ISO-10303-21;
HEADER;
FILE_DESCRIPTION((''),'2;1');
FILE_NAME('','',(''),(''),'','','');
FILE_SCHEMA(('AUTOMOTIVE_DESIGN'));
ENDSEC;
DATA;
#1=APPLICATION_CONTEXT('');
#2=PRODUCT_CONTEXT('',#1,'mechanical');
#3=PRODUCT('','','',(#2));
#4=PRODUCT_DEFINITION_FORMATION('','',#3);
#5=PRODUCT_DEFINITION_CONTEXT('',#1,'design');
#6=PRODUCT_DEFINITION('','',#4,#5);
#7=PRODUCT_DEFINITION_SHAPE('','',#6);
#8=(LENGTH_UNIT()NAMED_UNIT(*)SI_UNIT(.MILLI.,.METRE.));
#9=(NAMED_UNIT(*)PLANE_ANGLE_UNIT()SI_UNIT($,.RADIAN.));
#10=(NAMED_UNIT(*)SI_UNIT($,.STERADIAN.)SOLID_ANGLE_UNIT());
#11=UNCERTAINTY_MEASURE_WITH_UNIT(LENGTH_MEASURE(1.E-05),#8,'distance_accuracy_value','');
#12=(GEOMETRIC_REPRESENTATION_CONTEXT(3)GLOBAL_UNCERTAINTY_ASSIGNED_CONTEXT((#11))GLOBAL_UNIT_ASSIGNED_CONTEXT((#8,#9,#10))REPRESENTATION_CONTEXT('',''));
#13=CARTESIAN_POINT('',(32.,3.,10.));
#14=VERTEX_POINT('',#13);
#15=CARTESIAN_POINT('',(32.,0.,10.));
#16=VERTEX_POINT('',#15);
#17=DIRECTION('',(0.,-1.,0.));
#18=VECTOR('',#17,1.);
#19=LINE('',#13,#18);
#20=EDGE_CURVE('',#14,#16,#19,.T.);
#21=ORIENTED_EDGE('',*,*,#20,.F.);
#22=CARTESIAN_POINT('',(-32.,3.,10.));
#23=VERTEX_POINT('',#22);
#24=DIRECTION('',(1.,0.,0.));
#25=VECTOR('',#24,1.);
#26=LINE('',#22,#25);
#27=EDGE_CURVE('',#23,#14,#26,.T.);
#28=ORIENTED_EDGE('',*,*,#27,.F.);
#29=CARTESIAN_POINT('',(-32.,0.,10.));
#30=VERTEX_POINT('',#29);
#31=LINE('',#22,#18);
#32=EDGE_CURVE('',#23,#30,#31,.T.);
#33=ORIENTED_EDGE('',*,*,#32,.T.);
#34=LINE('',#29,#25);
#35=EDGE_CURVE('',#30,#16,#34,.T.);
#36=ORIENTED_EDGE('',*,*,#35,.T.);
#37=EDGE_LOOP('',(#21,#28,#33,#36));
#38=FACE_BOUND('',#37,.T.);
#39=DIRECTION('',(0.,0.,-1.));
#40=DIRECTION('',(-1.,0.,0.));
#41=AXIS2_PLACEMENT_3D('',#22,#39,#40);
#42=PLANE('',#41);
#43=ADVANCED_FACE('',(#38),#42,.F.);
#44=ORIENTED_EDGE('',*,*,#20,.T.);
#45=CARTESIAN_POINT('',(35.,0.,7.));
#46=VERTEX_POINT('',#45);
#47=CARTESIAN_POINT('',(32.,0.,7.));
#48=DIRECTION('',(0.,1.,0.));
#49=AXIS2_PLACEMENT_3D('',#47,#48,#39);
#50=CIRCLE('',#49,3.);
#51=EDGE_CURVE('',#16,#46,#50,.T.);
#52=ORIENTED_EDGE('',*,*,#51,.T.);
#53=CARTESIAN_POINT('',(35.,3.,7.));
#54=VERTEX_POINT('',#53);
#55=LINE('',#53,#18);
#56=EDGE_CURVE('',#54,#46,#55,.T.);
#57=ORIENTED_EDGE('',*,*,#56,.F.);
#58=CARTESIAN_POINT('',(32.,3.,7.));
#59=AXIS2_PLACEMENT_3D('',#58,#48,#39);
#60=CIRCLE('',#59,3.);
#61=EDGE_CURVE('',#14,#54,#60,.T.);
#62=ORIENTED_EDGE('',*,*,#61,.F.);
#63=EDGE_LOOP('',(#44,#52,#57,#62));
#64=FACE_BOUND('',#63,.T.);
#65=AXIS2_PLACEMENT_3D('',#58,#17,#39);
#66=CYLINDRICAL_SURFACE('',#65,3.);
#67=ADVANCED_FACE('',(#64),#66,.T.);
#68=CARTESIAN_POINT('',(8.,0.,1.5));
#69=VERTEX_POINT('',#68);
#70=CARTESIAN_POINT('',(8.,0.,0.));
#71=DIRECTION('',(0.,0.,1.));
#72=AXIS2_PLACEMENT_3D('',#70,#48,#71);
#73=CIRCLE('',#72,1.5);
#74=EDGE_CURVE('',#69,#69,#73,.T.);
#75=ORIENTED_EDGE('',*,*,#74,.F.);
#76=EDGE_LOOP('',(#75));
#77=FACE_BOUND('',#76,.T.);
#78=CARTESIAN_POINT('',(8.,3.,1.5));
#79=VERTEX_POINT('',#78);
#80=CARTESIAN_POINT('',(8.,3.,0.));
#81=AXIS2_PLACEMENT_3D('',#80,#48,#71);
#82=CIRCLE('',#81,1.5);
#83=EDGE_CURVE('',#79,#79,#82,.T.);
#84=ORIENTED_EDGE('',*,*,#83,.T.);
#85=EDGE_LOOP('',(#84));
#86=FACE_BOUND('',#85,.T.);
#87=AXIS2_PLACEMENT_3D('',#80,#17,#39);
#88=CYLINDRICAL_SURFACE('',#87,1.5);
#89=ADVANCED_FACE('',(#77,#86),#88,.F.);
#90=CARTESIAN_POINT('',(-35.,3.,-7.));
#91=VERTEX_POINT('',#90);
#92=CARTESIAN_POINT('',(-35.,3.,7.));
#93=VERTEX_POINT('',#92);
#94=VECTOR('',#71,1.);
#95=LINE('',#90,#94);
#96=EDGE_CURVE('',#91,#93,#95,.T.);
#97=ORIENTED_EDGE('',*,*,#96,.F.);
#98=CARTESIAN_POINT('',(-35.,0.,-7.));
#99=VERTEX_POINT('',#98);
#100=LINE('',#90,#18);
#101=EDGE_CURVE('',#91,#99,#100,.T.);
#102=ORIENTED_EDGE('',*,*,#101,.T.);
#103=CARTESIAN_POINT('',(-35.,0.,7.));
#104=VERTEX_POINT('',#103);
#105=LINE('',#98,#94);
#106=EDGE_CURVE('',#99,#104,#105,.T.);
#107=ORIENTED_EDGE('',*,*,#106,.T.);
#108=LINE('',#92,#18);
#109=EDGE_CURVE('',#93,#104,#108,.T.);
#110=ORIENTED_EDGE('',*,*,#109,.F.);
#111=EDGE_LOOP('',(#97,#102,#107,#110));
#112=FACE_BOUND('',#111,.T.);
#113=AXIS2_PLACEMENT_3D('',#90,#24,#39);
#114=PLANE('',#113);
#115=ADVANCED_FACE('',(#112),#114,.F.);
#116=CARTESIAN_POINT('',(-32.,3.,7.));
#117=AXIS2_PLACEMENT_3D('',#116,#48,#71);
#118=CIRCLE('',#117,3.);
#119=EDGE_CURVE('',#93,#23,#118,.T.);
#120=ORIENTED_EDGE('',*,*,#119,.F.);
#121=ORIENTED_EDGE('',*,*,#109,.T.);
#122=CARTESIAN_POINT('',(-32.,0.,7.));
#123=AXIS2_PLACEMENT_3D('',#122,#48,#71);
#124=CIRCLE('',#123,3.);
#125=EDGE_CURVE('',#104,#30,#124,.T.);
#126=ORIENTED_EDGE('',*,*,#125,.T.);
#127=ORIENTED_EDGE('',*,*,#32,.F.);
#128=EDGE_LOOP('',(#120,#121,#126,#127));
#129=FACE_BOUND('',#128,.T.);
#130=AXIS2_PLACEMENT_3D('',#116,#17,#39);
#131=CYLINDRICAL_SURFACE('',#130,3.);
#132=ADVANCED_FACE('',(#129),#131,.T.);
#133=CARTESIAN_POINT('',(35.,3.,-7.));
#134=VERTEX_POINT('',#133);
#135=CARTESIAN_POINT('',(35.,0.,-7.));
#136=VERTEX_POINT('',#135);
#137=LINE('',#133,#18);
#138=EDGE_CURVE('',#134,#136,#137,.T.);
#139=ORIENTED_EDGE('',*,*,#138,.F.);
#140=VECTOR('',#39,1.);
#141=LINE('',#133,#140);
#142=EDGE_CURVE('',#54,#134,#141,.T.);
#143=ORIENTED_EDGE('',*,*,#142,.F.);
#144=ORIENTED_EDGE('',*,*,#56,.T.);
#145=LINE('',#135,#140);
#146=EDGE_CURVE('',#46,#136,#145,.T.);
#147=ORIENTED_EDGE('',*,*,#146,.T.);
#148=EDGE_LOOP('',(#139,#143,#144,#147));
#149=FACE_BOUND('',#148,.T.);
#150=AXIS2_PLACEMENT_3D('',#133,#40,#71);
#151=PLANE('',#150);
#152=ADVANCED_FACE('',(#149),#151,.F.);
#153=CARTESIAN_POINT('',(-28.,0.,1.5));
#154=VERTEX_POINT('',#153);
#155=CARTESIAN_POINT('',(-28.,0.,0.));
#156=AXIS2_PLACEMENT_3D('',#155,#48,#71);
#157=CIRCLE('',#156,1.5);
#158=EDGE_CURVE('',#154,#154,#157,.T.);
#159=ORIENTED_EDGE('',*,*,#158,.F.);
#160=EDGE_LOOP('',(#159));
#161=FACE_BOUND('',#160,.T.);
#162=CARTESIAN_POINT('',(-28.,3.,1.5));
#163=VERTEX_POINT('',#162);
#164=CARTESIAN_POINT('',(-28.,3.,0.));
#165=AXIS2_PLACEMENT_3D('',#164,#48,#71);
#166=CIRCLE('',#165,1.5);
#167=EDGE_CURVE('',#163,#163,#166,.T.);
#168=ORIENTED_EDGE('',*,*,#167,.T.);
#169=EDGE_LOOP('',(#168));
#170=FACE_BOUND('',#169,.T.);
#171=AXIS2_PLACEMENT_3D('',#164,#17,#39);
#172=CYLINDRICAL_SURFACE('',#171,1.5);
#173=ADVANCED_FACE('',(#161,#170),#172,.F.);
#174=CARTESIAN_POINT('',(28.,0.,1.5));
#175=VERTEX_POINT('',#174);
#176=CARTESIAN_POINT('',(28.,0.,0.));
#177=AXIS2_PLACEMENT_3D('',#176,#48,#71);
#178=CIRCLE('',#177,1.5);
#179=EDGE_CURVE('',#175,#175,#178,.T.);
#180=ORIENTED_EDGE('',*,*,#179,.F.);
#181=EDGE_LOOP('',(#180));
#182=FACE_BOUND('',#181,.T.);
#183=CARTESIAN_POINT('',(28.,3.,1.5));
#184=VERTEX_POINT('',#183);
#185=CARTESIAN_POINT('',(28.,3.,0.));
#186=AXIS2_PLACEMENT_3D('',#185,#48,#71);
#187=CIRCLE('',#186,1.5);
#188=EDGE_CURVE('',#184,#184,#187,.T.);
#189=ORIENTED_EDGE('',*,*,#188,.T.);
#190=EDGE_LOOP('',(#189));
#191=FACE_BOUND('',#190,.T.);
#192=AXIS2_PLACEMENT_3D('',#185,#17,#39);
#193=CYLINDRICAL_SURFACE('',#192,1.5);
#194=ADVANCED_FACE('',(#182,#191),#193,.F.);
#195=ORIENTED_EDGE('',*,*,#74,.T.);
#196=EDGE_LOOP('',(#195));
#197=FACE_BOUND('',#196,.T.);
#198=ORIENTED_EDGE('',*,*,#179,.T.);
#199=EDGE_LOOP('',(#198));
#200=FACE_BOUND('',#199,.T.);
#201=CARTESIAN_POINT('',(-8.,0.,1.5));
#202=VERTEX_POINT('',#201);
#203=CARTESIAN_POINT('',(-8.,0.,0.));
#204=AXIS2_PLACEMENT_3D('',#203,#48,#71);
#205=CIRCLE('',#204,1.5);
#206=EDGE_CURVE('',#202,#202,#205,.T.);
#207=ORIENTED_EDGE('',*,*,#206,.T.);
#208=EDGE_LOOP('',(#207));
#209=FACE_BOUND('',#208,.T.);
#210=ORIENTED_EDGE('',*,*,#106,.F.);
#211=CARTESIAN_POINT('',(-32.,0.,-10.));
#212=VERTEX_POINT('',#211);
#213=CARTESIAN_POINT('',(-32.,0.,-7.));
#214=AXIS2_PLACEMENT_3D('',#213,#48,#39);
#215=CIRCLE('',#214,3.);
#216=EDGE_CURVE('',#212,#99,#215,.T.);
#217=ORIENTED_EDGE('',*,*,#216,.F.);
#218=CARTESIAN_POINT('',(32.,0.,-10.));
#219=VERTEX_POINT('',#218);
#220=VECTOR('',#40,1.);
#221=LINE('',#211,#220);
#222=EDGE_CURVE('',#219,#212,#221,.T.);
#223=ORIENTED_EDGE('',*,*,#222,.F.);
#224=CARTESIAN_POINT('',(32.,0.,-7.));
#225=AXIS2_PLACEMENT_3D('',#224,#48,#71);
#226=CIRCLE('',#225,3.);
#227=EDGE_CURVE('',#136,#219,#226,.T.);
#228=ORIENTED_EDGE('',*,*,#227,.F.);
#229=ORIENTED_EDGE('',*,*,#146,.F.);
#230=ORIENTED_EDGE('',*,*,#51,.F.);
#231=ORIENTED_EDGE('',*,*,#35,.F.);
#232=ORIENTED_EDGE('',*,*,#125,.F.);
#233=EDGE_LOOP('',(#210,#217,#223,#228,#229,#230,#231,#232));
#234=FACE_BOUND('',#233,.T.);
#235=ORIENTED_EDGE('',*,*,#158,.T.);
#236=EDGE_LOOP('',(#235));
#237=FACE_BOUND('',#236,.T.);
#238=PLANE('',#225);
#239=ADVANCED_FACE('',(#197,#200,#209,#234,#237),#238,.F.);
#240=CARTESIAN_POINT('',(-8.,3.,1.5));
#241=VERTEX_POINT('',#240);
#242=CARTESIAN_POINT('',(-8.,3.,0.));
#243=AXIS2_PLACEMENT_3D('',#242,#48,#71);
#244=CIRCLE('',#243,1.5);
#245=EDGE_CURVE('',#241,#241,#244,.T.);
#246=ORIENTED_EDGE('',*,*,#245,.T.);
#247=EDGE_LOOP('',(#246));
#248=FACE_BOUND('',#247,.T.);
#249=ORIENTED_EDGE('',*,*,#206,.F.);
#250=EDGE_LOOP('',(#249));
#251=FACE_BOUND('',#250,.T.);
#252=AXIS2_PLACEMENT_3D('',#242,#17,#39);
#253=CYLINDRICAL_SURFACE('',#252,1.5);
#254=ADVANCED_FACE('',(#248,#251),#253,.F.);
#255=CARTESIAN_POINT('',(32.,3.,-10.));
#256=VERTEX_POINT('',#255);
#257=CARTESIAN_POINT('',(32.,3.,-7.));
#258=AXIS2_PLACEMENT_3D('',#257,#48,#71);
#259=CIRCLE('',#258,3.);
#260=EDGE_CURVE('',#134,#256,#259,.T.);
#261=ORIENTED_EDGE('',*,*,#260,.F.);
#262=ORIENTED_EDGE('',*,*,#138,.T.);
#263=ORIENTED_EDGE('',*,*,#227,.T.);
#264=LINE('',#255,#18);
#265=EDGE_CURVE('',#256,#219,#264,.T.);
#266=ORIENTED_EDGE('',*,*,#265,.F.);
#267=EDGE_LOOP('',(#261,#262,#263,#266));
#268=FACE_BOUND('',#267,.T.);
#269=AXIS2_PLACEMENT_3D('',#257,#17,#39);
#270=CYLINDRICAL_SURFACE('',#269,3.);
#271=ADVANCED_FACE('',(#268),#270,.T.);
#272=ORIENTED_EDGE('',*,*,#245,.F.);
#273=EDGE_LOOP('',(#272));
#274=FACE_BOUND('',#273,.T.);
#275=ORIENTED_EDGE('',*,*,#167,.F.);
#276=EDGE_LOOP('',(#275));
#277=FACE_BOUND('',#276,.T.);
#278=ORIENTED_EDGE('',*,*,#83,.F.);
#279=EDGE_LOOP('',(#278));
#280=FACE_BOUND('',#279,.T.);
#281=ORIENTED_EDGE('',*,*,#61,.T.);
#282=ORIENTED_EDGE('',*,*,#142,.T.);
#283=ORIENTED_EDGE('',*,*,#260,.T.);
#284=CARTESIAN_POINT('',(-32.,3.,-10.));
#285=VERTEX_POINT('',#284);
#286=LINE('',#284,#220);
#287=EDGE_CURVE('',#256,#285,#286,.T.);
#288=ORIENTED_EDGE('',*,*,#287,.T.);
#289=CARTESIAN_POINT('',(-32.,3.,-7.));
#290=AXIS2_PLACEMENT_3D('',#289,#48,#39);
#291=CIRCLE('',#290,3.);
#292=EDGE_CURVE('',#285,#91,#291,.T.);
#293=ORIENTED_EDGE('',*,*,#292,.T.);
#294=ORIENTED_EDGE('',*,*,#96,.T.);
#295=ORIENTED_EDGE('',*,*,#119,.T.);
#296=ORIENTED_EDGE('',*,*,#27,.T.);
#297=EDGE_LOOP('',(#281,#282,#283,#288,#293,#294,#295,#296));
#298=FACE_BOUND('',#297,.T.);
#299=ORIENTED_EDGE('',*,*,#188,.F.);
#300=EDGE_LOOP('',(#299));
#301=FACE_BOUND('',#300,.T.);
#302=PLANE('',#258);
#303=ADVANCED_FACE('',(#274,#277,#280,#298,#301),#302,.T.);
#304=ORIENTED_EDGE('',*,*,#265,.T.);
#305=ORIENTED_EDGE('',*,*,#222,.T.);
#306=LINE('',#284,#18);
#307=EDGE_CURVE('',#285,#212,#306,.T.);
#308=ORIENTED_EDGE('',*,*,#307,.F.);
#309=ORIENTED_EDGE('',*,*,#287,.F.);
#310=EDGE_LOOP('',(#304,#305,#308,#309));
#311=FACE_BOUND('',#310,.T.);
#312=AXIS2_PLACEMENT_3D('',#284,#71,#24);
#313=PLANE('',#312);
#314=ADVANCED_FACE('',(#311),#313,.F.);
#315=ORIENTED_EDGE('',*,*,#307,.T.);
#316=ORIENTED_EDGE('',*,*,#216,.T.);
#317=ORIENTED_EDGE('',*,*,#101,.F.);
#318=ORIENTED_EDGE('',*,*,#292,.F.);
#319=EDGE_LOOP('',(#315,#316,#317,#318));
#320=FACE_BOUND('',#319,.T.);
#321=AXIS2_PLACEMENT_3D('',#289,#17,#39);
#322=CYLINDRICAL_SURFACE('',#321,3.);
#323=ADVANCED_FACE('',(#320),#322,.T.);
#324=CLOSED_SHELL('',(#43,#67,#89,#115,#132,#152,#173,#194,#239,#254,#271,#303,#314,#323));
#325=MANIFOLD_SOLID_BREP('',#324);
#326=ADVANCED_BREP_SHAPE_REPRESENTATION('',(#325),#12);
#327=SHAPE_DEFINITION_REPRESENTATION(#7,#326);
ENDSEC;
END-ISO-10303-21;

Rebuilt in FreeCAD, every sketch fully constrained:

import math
import FreeCAD as App
import Part
import Sketcher

doc = App.newDocument("Part")
params = doc.addObject("Spreadsheet::Sheet", "Params")
for row, (alias, value) in enumerate([
    ("sketch1_diameter", "3 mm"),
    ("sketch1_radius", "3 mm"),
    ("sketch1_width", "64 mm"),
    ("sketch1_height", "14 mm"),
    ("pad1_length", "3 mm"),
], start=1):
    params.set(f"A{row}", alias)
    params.set(f"B{row}", "=" + value)
    params.setAlias(f"B{row}", alias)

body = doc.addObject("PartDesign::Body", "Body")

# Sketch on XZ plane
sketch1 = doc.addObject("Sketcher::SketchObject", "Sketch")
body.addObject(sketch1)
sketch1.AttachmentSupport = (doc.XZ_Plane, [""])
sketch1.MapMode = "FlatFace"
sketch1.addGeometry(Part.LineSegment(App.Vector(32, -10, 0), App.Vector(-32, -10, 0)), False)
sketch1.addGeometry(Part.ArcOfCircle(Part.Circle(App.Vector(-32, -7, 0), App.Vector(0, 0, 1), 3), math.radians(180), math.radians(270)), False)
sketch1.addGeometry(Part.LineSegment(App.Vector(-35, -7, 0), App.Vector(-35, 7, 0)), False)
sketch1.addGeometry(Part.ArcOfCircle(Part.Circle(App.Vector(-32, 7, 0), App.Vector(0, 0, 1), 3), math.radians(90), math.radians(180)), False)
sketch1.addGeometry(Part.LineSegment(App.Vector(-32, 10, 0), App.Vector(32, 10, 0)), False)
sketch1.addGeometry(Part.ArcOfCircle(Part.Circle(App.Vector(32, 7, 0), App.Vector(0, 0, 1), 3), math.radians(0), math.radians(90)), False)
sketch1.addGeometry(Part.LineSegment(App.Vector(35, 7, 0), App.Vector(35, -7, 0)), False)
sketch1.addGeometry(Part.ArcOfCircle(Part.Circle(App.Vector(32, -7, 0), App.Vector(0, 0, 1), 3), math.radians(-90), math.radians(0)), False)
sketch1.addGeometry(Part.Circle(App.Vector(28, 0, 0), App.Vector(0, 0, 1), 1.5), False)
sketch1.addGeometry(Part.Circle(App.Vector(8, 0, 0), App.Vector(0, 0, 1), 1.5), False)
sketch1.addGeometry(Part.Circle(App.Vector(-8, 0, 0), App.Vector(0, 0, 1), 1.5), False)
sketch1.addGeometry(Part.Circle(App.Vector(-28, 0, 0), App.Vector(0, 0, 1), 1.5), False)
sketch1.addConstraint(Sketcher.Constraint("Tangent", 0, 2, 1, 2))
sketch1.addConstraint(Sketcher.Constraint("Tangent", 1, 1, 2, 1))
sketch1.addConstraint(Sketcher.Constraint("Tangent", 2, 2, 3, 2))
sketch1.addConstraint(Sketcher.Constraint("Tangent", 3, 1, 4, 1))
sketch1.addConstraint(Sketcher.Constraint("Tangent", 4, 2, 5, 2))
sketch1.addConstraint(Sketcher.Constraint("Tangent", 5, 1, 6, 1))
sketch1.addConstraint(Sketcher.Constraint("Tangent", 6, 2, 7, 2))
sketch1.addConstraint(Sketcher.Constraint("Tangent", 7, 1, 0, 1))
sketch1.addConstraint(Sketcher.Constraint("Horizontal", 0))
sketch1.addConstraint(Sketcher.Constraint("Vertical", 2))
sketch1.addConstraint(Sketcher.Constraint("Horizontal", 4))
sketch1.addConstraint(Sketcher.Constraint("Vertical", 6))
sketch1.addConstraint(Sketcher.Constraint("Equal", 1, 3))
sketch1.addConstraint(Sketcher.Constraint("Equal", 3, 5))
sketch1.addConstraint(Sketcher.Constraint("Equal", 5, 7))
sketch1.addConstraint(Sketcher.Constraint("Equal", 8, 9))
sketch1.addConstraint(Sketcher.Constraint("Equal", 9, 10))
sketch1.addConstraint(Sketcher.Constraint("Equal", 10, 11))
sketch1.addConstraint(Sketcher.Constraint("Symmetric", 1, 3, 5, 3, -1, 1))
sketch1.addConstraint(Sketcher.Constraint("Symmetric", 9, 3, 10, 3, -1, 1))
sketch1.addConstraint(Sketcher.Constraint("Symmetric", 8, 3, 11, 3, -1, 1))
sketch1.addConstraint(Sketcher.Constraint("PointOnObject", 8, 3, -1))
sketch1.addConstraint(Sketcher.Constraint("PointOnObject", 9, 3, -1))
sketch1.addConstraint(Sketcher.Constraint("Diameter", 8, 3.0))
sketch1.addConstraint(Sketcher.Constraint("Radius", 1, 3.0))
sketch1.addConstraint(Sketcher.Constraint("DistanceX", 0, 2, 0, 1, 64.0))
sketch1.addConstraint(Sketcher.Constraint("DistanceY", 2, 1, 2, 2, 14.0))
sketch1.addConstraint(Sketcher.Constraint("DistanceX", -1, 1, 8, 3, 28.0))
sketch1.addConstraint(Sketcher.Constraint("DistanceX", -1, 1, 9, 3, 8.0))
sketch1.setExpression("Constraints[23]", "Params.sketch1_diameter")
sketch1.setExpression("Constraints[24]", "Params.sketch1_radius")
sketch1.setExpression("Constraints[25]", "Params.sketch1_width")
sketch1.setExpression("Constraints[26]", "Params.sketch1_height")
pad1 = doc.addObject("PartDesign::Pad", "Pad")
body.addObject(pad1)
pad1.Profile = sketch1
pad1.setExpression("Length", "Params.pad1_length")
pad1.Reversed = True

doc.recompute()
